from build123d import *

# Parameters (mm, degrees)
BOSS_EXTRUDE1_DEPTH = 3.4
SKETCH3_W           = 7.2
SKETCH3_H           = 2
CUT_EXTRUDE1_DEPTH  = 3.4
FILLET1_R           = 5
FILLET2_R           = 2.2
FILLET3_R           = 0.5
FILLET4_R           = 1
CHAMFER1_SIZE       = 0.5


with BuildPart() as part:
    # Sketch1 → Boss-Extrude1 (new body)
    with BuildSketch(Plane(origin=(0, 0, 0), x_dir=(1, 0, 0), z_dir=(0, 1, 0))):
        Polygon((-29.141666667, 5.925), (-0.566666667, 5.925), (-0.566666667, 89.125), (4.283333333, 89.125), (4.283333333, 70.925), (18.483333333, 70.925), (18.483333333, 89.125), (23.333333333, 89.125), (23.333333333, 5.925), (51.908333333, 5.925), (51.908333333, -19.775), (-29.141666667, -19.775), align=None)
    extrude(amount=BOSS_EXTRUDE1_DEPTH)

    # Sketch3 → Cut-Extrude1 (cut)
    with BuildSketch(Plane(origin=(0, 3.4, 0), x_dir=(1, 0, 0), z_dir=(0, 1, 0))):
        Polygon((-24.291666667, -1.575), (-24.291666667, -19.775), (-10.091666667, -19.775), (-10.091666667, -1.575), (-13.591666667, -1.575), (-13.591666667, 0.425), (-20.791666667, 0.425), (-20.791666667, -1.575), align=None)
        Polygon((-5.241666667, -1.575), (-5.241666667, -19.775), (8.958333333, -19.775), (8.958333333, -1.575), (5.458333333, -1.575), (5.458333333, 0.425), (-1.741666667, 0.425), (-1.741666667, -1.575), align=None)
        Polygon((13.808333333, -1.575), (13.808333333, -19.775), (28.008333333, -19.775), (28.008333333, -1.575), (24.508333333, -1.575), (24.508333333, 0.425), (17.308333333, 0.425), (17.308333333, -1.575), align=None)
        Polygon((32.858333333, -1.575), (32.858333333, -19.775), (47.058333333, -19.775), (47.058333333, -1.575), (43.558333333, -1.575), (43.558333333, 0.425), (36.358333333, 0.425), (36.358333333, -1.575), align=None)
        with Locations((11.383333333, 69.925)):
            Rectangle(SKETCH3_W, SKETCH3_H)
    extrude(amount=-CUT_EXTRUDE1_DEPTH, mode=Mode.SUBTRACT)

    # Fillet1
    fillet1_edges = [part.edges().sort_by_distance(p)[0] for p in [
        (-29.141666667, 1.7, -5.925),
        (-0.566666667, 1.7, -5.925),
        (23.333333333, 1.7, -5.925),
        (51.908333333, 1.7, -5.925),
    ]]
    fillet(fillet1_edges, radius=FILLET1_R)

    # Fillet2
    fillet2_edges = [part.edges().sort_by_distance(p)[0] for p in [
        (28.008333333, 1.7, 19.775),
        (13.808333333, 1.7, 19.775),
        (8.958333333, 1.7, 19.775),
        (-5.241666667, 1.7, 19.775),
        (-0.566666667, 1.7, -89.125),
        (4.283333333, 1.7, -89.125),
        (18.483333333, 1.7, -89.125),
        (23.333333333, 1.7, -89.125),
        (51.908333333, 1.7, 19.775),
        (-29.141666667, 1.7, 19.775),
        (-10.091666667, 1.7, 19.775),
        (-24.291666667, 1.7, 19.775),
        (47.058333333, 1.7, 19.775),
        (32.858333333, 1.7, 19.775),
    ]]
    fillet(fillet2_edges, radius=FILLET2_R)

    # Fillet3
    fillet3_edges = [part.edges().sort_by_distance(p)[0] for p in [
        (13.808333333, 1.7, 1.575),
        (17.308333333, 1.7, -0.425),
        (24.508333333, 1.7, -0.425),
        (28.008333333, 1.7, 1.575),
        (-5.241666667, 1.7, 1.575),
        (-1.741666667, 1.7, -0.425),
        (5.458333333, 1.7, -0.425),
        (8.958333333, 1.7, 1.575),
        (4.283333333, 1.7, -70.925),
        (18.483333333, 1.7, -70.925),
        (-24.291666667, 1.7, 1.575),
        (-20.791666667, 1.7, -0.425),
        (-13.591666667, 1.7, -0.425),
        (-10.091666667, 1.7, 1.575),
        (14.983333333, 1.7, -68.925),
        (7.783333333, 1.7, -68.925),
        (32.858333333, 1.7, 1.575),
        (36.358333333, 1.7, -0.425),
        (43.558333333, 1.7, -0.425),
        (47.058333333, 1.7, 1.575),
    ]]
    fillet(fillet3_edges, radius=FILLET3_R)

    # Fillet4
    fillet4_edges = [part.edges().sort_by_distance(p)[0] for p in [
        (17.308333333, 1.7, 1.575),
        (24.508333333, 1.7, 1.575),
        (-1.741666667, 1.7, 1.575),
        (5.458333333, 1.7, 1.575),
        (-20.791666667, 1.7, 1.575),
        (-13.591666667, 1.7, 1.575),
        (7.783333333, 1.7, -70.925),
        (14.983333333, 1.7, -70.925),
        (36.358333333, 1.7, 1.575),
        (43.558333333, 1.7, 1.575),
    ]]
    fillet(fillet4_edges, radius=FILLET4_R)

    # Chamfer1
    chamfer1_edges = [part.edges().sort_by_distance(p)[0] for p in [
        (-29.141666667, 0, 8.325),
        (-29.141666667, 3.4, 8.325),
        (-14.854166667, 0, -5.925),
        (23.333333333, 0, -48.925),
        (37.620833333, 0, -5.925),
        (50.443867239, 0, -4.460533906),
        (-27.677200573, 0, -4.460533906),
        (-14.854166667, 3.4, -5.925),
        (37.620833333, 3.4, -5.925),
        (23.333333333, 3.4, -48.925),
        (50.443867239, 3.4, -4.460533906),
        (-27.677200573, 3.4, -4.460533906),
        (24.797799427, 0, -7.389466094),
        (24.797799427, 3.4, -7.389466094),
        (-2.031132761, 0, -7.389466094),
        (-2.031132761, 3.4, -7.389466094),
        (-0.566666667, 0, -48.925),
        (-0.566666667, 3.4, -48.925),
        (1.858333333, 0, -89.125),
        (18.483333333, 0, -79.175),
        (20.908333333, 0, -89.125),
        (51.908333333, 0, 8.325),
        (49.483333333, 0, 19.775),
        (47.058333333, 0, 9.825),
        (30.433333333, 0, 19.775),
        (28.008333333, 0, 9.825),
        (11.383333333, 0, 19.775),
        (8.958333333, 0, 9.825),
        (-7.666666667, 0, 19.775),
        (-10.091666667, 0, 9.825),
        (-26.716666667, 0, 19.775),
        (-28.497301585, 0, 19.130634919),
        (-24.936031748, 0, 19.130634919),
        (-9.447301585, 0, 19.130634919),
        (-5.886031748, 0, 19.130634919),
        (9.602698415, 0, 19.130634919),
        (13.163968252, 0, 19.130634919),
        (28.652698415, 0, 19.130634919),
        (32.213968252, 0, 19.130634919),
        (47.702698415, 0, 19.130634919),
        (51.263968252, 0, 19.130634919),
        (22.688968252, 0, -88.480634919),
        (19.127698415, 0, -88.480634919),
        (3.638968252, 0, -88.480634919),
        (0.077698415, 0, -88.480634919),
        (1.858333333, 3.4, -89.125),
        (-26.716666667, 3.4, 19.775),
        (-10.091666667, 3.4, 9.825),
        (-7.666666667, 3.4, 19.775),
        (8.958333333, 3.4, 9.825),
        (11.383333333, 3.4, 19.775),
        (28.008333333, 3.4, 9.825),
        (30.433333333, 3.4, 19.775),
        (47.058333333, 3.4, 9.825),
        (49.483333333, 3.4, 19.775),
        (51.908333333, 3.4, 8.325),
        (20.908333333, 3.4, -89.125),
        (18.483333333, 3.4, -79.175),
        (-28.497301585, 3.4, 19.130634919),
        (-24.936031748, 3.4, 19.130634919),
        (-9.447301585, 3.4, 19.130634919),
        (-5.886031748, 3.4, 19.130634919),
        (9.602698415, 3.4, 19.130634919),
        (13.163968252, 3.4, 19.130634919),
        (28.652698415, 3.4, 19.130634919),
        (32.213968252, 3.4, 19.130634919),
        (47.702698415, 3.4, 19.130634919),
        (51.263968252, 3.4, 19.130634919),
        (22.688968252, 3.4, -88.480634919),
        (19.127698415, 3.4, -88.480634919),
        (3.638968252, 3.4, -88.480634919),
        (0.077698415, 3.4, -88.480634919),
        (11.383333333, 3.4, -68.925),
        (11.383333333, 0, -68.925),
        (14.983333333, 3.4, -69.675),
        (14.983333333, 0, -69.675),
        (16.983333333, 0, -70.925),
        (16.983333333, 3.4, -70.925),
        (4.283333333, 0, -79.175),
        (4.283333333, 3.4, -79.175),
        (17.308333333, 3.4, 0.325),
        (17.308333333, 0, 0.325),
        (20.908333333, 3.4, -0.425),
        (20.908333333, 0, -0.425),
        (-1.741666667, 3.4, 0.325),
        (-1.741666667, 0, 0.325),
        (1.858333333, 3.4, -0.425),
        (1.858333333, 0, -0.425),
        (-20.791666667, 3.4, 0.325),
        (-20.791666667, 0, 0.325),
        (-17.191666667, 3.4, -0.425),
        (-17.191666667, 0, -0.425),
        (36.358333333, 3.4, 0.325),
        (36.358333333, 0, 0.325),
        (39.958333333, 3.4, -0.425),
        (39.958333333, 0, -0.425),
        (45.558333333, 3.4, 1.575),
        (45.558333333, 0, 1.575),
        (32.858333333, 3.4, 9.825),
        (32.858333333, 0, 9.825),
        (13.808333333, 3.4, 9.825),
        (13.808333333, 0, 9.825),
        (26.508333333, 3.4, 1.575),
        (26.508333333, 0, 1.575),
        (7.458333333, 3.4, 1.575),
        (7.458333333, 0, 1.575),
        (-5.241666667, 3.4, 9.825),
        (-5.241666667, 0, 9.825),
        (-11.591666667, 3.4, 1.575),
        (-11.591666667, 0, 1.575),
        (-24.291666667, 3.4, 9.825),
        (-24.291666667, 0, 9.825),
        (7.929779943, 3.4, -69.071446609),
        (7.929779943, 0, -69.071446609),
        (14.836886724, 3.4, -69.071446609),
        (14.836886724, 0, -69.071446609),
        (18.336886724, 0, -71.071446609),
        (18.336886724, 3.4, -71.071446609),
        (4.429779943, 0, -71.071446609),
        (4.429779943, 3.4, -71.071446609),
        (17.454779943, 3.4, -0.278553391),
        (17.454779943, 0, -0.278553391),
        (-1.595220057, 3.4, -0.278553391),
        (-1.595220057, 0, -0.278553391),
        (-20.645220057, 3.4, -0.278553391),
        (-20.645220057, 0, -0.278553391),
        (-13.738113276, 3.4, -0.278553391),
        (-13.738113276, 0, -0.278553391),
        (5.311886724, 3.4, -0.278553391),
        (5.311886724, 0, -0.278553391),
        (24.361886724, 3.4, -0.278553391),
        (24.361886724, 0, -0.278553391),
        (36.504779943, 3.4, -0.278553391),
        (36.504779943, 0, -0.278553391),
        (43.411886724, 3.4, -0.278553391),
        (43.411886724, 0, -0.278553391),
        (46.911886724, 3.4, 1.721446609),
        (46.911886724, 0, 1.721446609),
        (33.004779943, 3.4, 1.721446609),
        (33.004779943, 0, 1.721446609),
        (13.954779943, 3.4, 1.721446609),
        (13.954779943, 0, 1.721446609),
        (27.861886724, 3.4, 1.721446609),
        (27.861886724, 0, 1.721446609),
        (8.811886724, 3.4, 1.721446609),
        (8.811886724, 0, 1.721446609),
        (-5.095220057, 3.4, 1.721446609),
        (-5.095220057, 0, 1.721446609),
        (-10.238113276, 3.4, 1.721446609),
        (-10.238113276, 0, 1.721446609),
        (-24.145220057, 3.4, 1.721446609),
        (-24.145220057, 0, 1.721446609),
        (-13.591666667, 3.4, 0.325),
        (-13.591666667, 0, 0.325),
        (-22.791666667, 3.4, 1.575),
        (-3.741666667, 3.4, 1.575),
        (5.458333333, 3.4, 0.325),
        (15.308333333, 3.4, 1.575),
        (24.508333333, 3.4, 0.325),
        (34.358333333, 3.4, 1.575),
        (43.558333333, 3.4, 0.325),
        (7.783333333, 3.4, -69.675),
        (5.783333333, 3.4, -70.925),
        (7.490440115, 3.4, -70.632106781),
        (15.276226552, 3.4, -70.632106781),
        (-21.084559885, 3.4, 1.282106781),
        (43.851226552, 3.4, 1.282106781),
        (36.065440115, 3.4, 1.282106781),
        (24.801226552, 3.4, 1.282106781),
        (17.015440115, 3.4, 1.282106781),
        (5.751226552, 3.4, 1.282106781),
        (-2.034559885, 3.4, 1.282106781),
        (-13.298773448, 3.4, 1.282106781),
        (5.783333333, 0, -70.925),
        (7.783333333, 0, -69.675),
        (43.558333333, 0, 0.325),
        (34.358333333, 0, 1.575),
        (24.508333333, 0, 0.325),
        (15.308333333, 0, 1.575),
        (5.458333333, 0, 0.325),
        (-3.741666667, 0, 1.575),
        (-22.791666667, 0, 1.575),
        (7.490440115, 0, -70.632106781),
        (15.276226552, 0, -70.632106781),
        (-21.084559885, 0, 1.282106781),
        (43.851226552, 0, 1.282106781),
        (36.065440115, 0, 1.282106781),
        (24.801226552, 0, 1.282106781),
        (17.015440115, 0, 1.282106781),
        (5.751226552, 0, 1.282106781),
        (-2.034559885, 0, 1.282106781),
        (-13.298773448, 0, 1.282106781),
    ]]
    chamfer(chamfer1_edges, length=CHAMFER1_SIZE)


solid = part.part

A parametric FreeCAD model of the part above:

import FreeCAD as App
import Part
import Sketcher


def edges_at(feature, points):
    """Names of the edges that pass closest to the given points."""
    edges = feature.Shape.Edges
    near = lambda p: min(range(len(edges)), key=lambda i: edges[i].distToShape(Part.Vertex(*p))[0])
    return sorted({f"Edge{near(p) + 1}" for p in points})

doc = App.newDocument("Part")
params = doc.addObject("Spreadsheet::Sheet", "Params")
for row, (alias, value) in enumerate([
    ("sketch1_width", "14.2 mm"),
    ("sketch1_height", "25.7 mm"),
    ("sketch1_height2", "83.2 mm"),
    ("sketch1_height3", "18.2 mm"),
    ("sketch1_width2", "81.05 mm"),
    ("pad1_length", "3.4 mm"),
    ("sketch2_height", "2 mm"),
    ("sketch2_width", "14.2 mm"),
    ("sketch2_width2", "3.5 mm"),
    ("sketch2_height2", "18.2 mm"),
    ("pocket1_length", "3.4 mm"),
    ("fillet_radius", "5 mm"),
    ("fillet2_radius", "2.2 mm"),
    ("fillet3_radius", "0.5 mm"),
    ("fillet4_radius", "1 mm"),
    ("chamfer_size", "0.5 mm"),
], start=1):
    params.set(f"A{row}", alias)
    params.set(f"B{row}", "=" + value)
    params.setAlias(f"B{row}", alias)

body = doc.addObject("PartDesign::Body", "Body")

# Sketch on XZ plane
sketch1 = doc.addObject("Sketcher::SketchObject", "Sketch")
body.addObject(sketch1)
sketch1.AttachmentSupport = (doc.XZ_Plane, [""])
sketch1.MapMode = "FlatFace"
sketch1.addGeometry([
    Part.LineSegment(App.Vector(-0.6, -5.9, 0), App.Vector(-29.1, -5.9, 0)),  # 0
    Part.LineSegment(App.Vector(-29.1, -5.9, 0), App.Vector(-29.1, 19.8, 0)),  # 1
    Part.LineSegment(App.Vector(-29.1, 19.8, 0), App.Vector(51.9, 19.8, 0)),  # 2
    Part.LineSegment(App.Vector(51.9, 19.8, 0), App.Vector(51.9, -5.9, 0)),  # 3
    Part.LineSegment(App.Vector(51.9, -5.9, 0), App.Vector(23.3, -5.9, 0)),  # 4
    Part.LineSegment(App.Vector(23.3, -5.9, 0), App.Vector(23.3, -89.1, 0)),  # 5
    Part.LineSegment(App.Vector(23.3, -89.1, 0), App.Vector(18.5, -89.1, 0)),  # 6
    Part.LineSegment(App.Vector(18.5, -89.1, 0), App.Vector(18.5, -70.9, 0)),  # 7
    Part.LineSegment(App.Vector(18.5, -70.9, 0), App.Vector(4.3, -70.9, 0)),  # 8
    Part.LineSegment(App.Vector(4.3, -70.9, 0), App.Vector(4.3, -89.1, 0)),  # 9
    Part.LineSegment(App.Vector(4.3, -89.1, 0), App.Vector(-0.6, -89.1, 0)),  # 10
    Part.LineSegment(App.Vector(-0.6, -89.1, 0), App.Vector(-0.6, -5.9, 0)),  # 11
], False)
sketch1.addConstraint([
    Sketcher.Constraint("Coincident", 0, 2, 1, 1),
    Sketcher.Constraint("Coincident", 1, 2, 2, 1),
    Sketcher.Constraint("Coincident", 2, 2, 3, 1),
    Sketcher.Constraint("Coincident", 3, 2, 4, 1),
    Sketcher.Constraint("Coincident", 4, 2, 5, 1),
    Sketcher.Constraint("Coincident", 5, 2, 6, 1),
    Sketcher.Constraint("Coincident", 6, 2, 7, 1),
    Sketcher.Constraint("Coincident", 7, 2, 8, 1),
    Sketcher.Constraint("Coincident", 8, 2, 9, 1),
    Sketcher.Constraint("Coincident", 9, 2, 10, 1),
    Sketcher.Constraint("Coincident", 10, 2, 11, 1),
    Sketcher.Constraint("Coincident", 11, 2, 0, 1),
    Sketcher.Constraint("Horizontal", 0),
    Sketcher.Constraint("Vertical", 1),
    Sketcher.Constraint("Horizontal", 2),
    Sketcher.Constraint("Vertical", 3),
    Sketcher.Constraint("Horizontal", 4),
    Sketcher.Constraint("Vertical", 5),
    Sketcher.Constraint("Horizontal", 6),
    Sketcher.Constraint("Vertical", 7),
    Sketcher.Constraint("Horizontal", 8),
    Sketcher.Constraint("Vertical", 9),
    Sketcher.Constraint("Horizontal", 10),
    Sketcher.Constraint("Vertical", 11),
    Sketcher.Constraint("Horizontal", 0, 2, 3, 2),
    Sketcher.Constraint("Horizontal", 6, 2, 9, 2),
    Sketcher.Constraint("Equal", 0, 4),
    Sketcher.Constraint("Equal", 6, 10),
    Sketcher.Constraint("DistanceX", 8, 2, 8, 1, 14.2),
    Sketcher.Constraint("DistanceY", 1, 1, 1, 2, 25.7),
    Sketcher.Constraint("DistanceY", 5, 2, 5, 1, 83.2),
    Sketcher.Constraint("DistanceY", 7, 1, 7, 2, 18.2),
    Sketcher.Constraint("DistanceX", 2, 1, 2, 2, 81.05),
    Sketcher.Constraint("DistanceX", 6, 2, 6, 1, 4.85),
    Sketcher.Constraint("DistanceY", 0, 2, -1, 1, 5.925),
    Sketcher.Constraint("DistanceX", 0, 2, -1, 1, 29.141667),
])
sketch1.setExpression("Constraints[28]", "Params.sketch1_width")
sketch1.setExpression("Constraints[29]", "Params.sketch1_height")
sketch1.setExpression("Constraints[30]", "Params.sketch1_height2")
sketch1.setExpression("Constraints[31]", "Params.sketch1_height3")
sketch1.setExpression("Constraints[32]", "Params.sketch1_width2")
pad1 = doc.addObject("PartDesign::Pad", "Pad")
body.addObject(pad1)
pad1.Profile = sketch1
pad1.setExpression("Length", "Params.pad1_length")
pad1.Reversed = True

# Sketch on XZ plane
sketch2 = doc.addObject("Sketcher::SketchObject", "Sketch001")
body.addObject(sketch2)
sketch2.AttachmentSupport = (doc.XZ_Plane, [""])
sketch2.MapMode = "FlatFace"
sketch2.AttachmentOffset = App.Placement(App.Vector(0, 0, -3.4), App.Rotation())
sketch2.addGeometry([
    Part.LineSegment(App.Vector(-24.3, 1.6, 0), App.Vector(-24.3, 19.8, 0)),  # 0
    Part.LineSegment(App.Vector(-24.3, 19.8, 0), App.Vector(-10.1, 19.8, 0)),  # 1
    Part.LineSegment(App.Vector(-10.1, 19.8, 0), App.Vector(-10.1, 1.6, 0)),  # 2
    Part.LineSegment(App.Vector(-10.1, 1.6, 0), App.Vector(-13.6, 1.6, 0)),  # 3
    Part.LineSegment(App.Vector(-13.6, 1.6, 0), App.Vector(-13.6, -0.4, 0)),  # 4
    Part.LineSegment(App.Vector(-13.6, -0.4, 0), App.Vector(-20.8, -0.4, 0)),  # 5
    Part.LineSegment(App.Vector(-20.8, -0.4, 0), App.Vector(-20.8, 1.6, 0)),  # 6
    Part.LineSegment(App.Vector(-20.8, 1.6, 0), App.Vector(-24.3, 1.6, 0)),  # 7
    Part.LineSegment(App.Vector(-5.2, 1.6, 0), App.Vector(-5.2, 19.8, 0)),  # 8
    Part.LineSegment(App.Vector(-5.2, 19.8, 0), App.Vector(9, 19.8, 0)),  # 9
    Part.LineSegment(App.Vector(9, 19.8, 0), App.Vector(9, 1.6, 0)),  # 10
    Part.LineSegment(App.Vector(9, 1.6, 0), App.Vector(5.5, 1.6, 0)),  # 11
    Part.LineSegment(App.Vector(5.5, 1.6, 0), App.Vector(5.5, -0.4, 0)),  # 12
    Part.LineSegment(App.Vector(5.5, -0.4, 0), App.Vector(-1.7, -0.4, 0)),  # 13
    Part.LineSegment(App.Vector(-1.7, -0.4, 0), App.Vector(-1.7, 1.6, 0)),  # 14
    Part.LineSegment(App.Vector(-1.7, 1.6, 0), App.Vector(-5.2, 1.6, 0)),  # 15
    Part.LineSegment(App.Vector(13.8, 1.6, 0), App.Vector(13.8, 19.8, 0)),  # 16
    Part.LineSegment(App.Vector(13.8, 19.8, 0), App.Vector(28, 19.8, 0)),  # 17
    Part.LineSegment(App.Vector(28, 19.8, 0), App.Vector(28, 1.6, 0)),  # 18
    Part.LineSegment(App.Vector(28, 1.6, 0), App.Vector(24.5, 1.6, 0)),  # 19
    Part.LineSegment(App.Vector(24.5, 1.6, 0), App.Vector(24.5, -0.4, 0)),  # 20
    Part.LineSegment(App.Vector(24.5, -0.4, 0), App.Vector(17.3, -0.4, 0)),  # 21
    Part.LineSegment(App.Vector(17.3, -0.4, 0), App.Vector(17.3, 1.6, 0)),  # 22
    Part.LineSegment(App.Vector(17.3, 1.6, 0), App.Vector(13.8, 1.6, 0)),  # 23
    Part.LineSegment(App.Vector(32.9, 1.6, 0), App.Vector(32.9, 19.8, 0)),  # 24
    Part.LineSegment(App.Vector(32.9, 19.8, 0), App.Vector(47.1, 19.8, 0)),  # 25
    Part.LineSegment(App.Vector(47.1, 19.8, 0), App.Vector(47.1, 1.6, 0)),  # 26
    Part.LineSegment(App.Vector(47.1, 1.6, 0), App.Vector(43.6, 1.6, 0)),  # 27
    Part.LineSegment(App.Vector(43.6, 1.6, 0), App.Vector(43.6, -0.4, 0)),  # 28
    Part.LineSegment(App.Vector(43.6, -0.4, 0), App.Vector(36.4, -0.4, 0)),  # 29
    Part.LineSegment(App.Vector(36.4, -0.4, 0), App.Vector(36.4, 1.6, 0)),  # 30
    Part.LineSegment(App.Vector(36.4, 1.6, 0), App.Vector(32.9, 1.6, 0)),  # 31
    Part.LineSegment(App.Vector(7.8, -70.9, 0), App.Vector(7.8, -68.9, 0)),  # 32
    Part.LineSegment(App.Vector(7.8, -68.9, 0), App.Vector(15, -68.9, 0)),  # 33
    Part.LineSegment(App.Vector(15, -68.9, 0), App.Vector(15, -70.9, 0)),  # 34
    Part.LineSegment(App.Vector(15, -70.9, 0), App.Vector(7.8, -70.9, 0)),  # 35
], False)
sketch2.addConstraint([
    Sketcher.Constraint("Coincident", 0, 2, 1, 1),
    Sketcher.Constraint("Coincident", 1, 2, 2, 1),
    Sketcher.Constraint("Coincident", 2, 2, 3, 1),
    Sketcher.Constraint("Coincident", 3, 2, 4, 1),
    Sketcher.Constraint("Coincident", 4, 2, 5, 1),
    Sketcher.Constraint("Coincident", 5, 2, 6, 1),
    Sketcher.Constraint("Coincident", 6, 2, 7, 1),
    Sketcher.Constraint("Coincident", 7, 2, 0, 1),
    Sketcher.Constraint("Coincident", 8, 2, 9, 1),
    Sketcher.Constraint("Coincident", 9, 2, 10, 1),
    Sketcher.Constraint("Coincident", 10, 2, 11, 1),
    Sketcher.Constraint("Coincident", 11, 2, 12, 1),
    Sketcher.Constraint("Coincident", 12, 2, 13, 1),
    Sketcher.Constraint("Coincident", 13, 2, 14, 1),
    Sketcher.Constraint("Coincident", 14, 2, 15, 1),
    Sketcher.Constraint("Coincident", 15, 2, 8, 1),
    Sketcher.Constraint("Coincident", 16, 2, 17, 1),
    Sketcher.Constraint("Coincident", 17, 2, 18, 1),
    Sketcher.Constraint("Coincident", 18, 2, 19, 1),
    Sketcher.Constraint("Coincident", 19, 2, 20, 1),
    Sketcher.Constraint("Coincident", 20, 2, 21, 1),
    Sketcher.Constraint("Coincident", 21, 2, 22, 1),
    Sketcher.Constraint("Coincident", 22, 2, 23, 1),
    Sketcher.Constraint("Coincident", 23, 2, 16, 1),
    Sketcher.Constraint("Coincident", 24, 2, 25, 1),
    Sketcher.Constraint("Coincident", 25, 2, 26, 1),
    Sketcher.Constraint("Coincident", 26, 2, 27, 1),
    Sketcher.Constraint("Coincident", 27, 2, 28, 1),
    Sketcher.Constraint("Coincident", 28, 2, 29, 1),
    Sketcher.Constraint("Coincident", 29, 2, 30, 1),
    Sketcher.Constraint("Coincident", 30, 2, 31, 1),
    Sketcher.Constraint("Coincident", 31, 2, 24, 1),
    Sketcher.Constraint("Coincident", 32, 2, 33, 1),
    Sketcher.Constraint("Coincident", 33, 2, 34, 1),
    Sketcher.Constraint("Coincident", 34, 2, 35, 1),
    Sketcher.Constraint("Coincident", 35, 2, 32, 1),
    Sketcher.Constraint("Vertical", 0),
    Sketcher.Constraint("Horizontal", 1),
    Sketcher.Constraint("Vertical", 2),
    Sketcher.Constraint("Horizontal", 3),
    Sketcher.Constraint("Vertical", 4),
    Sketcher.Constraint("Horizontal", 5),
    Sketcher.Constraint("Vertical", 6),
    Sketcher.Constraint("Horizontal", 7),
    Sketcher.Constraint("Vertical", 8),
    Sketcher.Constraint("Horizontal", 9),
    Sketcher.Constraint("Vertical", 10),
    Sketcher.Constraint("Horizontal", 11),
    Sketcher.Constraint("Vertical", 12),
    Sketcher.Constraint("Horizontal", 13),
    Sketcher.Constraint("Vertical", 14),
    Sketcher.Constraint("Horizontal", 15),
    Sketcher.Constraint("Vertical", 16),
    Sketcher.Constraint("Horizontal", 17),
    Sketcher.Constraint("Vertical", 18),
    Sketcher.Constraint("Horizontal", 19),
    Sketcher.Constraint("Vertical", 20),
    Sketcher.Constraint("Horizontal", 21),
    Sketcher.Constraint("Vertical", 22),
    Sketcher.Constraint("Horizontal", 23),
    Sketcher.Constraint("Vertical", 24),
    Sketcher.Constraint("Horizontal", 25),
    Sketcher.Constraint("Vertical", 26),
    Sketcher.Constraint("Horizontal", 27),
    Sketcher.Constraint("Vertical", 28),
    Sketcher.Constraint("Horizontal", 29),
    Sketcher.Constraint("Vertical", 30),
    Sketcher.Constraint("Horizontal", 31),
    Sketcher.Constraint("Vertical", 32),
    Sketcher.Constraint("Horizontal", 33),
    Sketcher.Constraint("Vertical", 34),
    Sketcher.Constraint("Horizontal", 35),
    Sketcher.Constraint("Horizontal", 3, 2, 6, 2),
    Sketcher.Constraint("Horizontal", 1, 2, 8, 2),
    Sketcher.Constraint("Horizontal", 7, 2, 10, 2),
    Sketcher.Constraint("Horizontal", 5, 2, 12, 2),
    Sketcher.Constraint("Horizontal", 11, 2, 14, 2),
    Sketcher.Constraint("Horizontal", 9, 2, 16, 2),
    Sketcher.Constraint("Horizontal", 15, 2, 18, 2),
    Sketcher.Constraint("Horizontal", 13, 2, 20, 2),
    Sketcher.Constraint("Horizontal", 19, 2, 22, 2),
    Sketcher.Constraint("Horizontal", 17, 2, 24, 2),
    Sketcher.Constraint("Horizontal", 23, 2, 26, 2),
    Sketcher.Constraint("Horizontal", 21, 2, 28, 2),
    Sketcher.Constraint("Horizontal", 27, 2, 30, 2),
    Sketcher.Constraint("Equal", 3, 7),
    Sketcher.Constraint("Equal", 1, 9),
    Sketcher.Constraint("Equal", 7, 11),
    Sketcher.Constraint("Equal", 5, 13),
    Sketcher.Constraint("Equal", 9, 17),
    Sketcher.Constraint("Equal", 15, 19),
    Sketcher.Constraint("Equal", 13, 21),
    Sketcher.Constraint("Equal", 17, 25),
    Sketcher.Constraint("Equal", 23, 27),
    Sketcher.Constraint("Equal", 21, 29),
    Sketcher.Constraint("Equal", 29, 33),
    Sketcher.Constraint("Equal", 30, 32),
    Sketcher.Constraint("DistanceY", 4, 2, 4, 1, 2.0),
    Sketcher.Constraint("DistanceX", 1, 1, 1, 2, 14.2),
    Sketcher.Constraint("DistanceX", 3, 2, 3, 1, 3.5),
    Sketcher.Constraint("DistanceY", 0, 1, 0, 2, 18.2),
    Sketcher.Constraint("DistanceY", 32, 2, 12, 2, 68.5),
    Sketcher.Constraint("DistanceX", 1, 2, 8, 2, 4.85),
    Sketcher.Constraint("DistanceX", 9, 2, 16, 2, 4.85),
    Sketcher.Constraint("DistanceX", 17, 2, 24, 2, 4.85),
    Sketcher.Constraint("DistanceY", -1, 1, 0, 2, 19.775),
    Sketcher.Constraint("DistanceX", 12, 2, 32, 2, 2.325),
    Sketcher.Constraint("DistanceX", 0, 2, -1, 1, 24.291667),
])
sketch2.setExpression("Constraints[97]", "Params.sketch2_height")
sketch2.setExpression("Constraints[98]", "Params.sketch2_width")
sketch2.setExpression("Constraints[99]", "Params.sketch2_width2")
sketch2.setExpression("Constraints[100]", "Params.sketch2_height2")
pocket1 = doc.addObject("PartDesign::Pocket", "Pocket")
body.addObject(pocket1)
pocket1.Profile = sketch2
pocket1.setExpression("Length", "Params.pocket1_length")
pocket1.Reversed = True
doc.recompute()

fillet = doc.addObject("PartDesign::Fillet", "Fillet")
body.addObject(fillet)
fillet.Base = (pocket1, edges_at(pocket1, [
    (-29.142, 1.7, -5.925),
    (-0.567, 1.7, -5.925),
    (23.333, 1.7, -5.925),
    (51.908, 1.7, -5.925),
]))
fillet.setExpression("Radius", "Params.fillet_radius")
doc.recompute()

fillet2 = doc.addObject("PartDesign::Fillet", "Fillet001")
body.addObject(fillet2)
fillet2.Base = (fillet, edges_at(fillet, [
    (28.008, 1.7, 19.775),
    (13.808, 1.7, 19.775),
    (8.958, 1.7, 19.775),
    (-5.242, 1.7, 19.775),
    (-0.567, 1.7, -89.125),
    (4.283, 1.7, -89.125),
    (18.483, 1.7, -89.125),
    (23.333, 1.7, -89.125),
    (51.908, 1.7, 19.775),
    (-29.142, 1.7, 19.775),
    (-10.092, 1.7, 19.775),
    (-24.292, 1.7, 19.775),
    (47.058, 1.7, 19.775),
    (32.858, 1.7, 19.775),
]))
fillet2.setExpression("Radius", "Params.fillet2_radius")
doc.recompute()

fillet3 = doc.addObject("PartDesign::Fillet", "Fillet002")
body.addObject(fillet3)
fillet3.Base = (fillet2, edges_at(fillet2, [
    (13.808, 1.7, 1.575),
    (17.308, 1.7, -0.425),
    (24.508, 1.7, -0.425),
    (28.008, 1.7, 1.575),
    (-5.242, 1.7, 1.575),
    (-1.742, 1.7, -0.425),
    (5.458, 1.7, -0.425),
    (8.958, 1.7, 1.575),
    (4.283, 1.7, -70.925),
    (18.483, 1.7, -70.925),
    (-24.292, 1.7, 1.575),
    (-20.792, 1.7, -0.425),
    (-13.592, 1.7, -0.425),
    (-10.092, 1.7, 1.575),
    (14.983, 1.7, -68.925),
    (7.783, 1.7, -68.925),
    (32.858, 1.7, 1.575),
    (36.358, 1.7, -0.425),
    (43.558, 1.7, -0.425),
    (47.058, 1.7, 1.575),
]))
fillet3.setExpression("Radius", "Params.fillet3_radius")
doc.recompute()

fillet4 = doc.addObject("PartDesign::Fillet", "Fillet003")
body.addObject(fillet4)
fillet4.Base = (fillet3, edges_at(fillet3, [
    (17.308, 1.7, 1.575),
    (24.508, 1.7, 1.575),
    (-1.742, 1.7, 1.575),
    (5.458, 1.7, 1.575),
    (-20.792, 1.7, 1.575),
    (-13.592, 1.7, 1.575),
    (7.783, 1.7, -70.925),
    (14.983, 1.7, -70.925),
    (36.358, 1.7, 1.575),
    (43.558, 1.7, 1.575),
]))
fillet4.setExpression("Radius", "Params.fillet4_radius")
doc.recompute()

chamfer = doc.addObject("PartDesign::Chamfer", "Chamfer")
body.addObject(chamfer)
chamfer.Base = (fillet4, edges_at(fillet4, [
    (-29.142, 0, 8.325),
    (-29.142, 3.4, 8.325),
    (-14.854, 0, -5.925),
    (23.333, 0, -48.925),
    (37.621, 0, -5.925),
    (50.444, 0, -4.461),
    (-27.677, 0, -4.461),
    (-14.854, 3.4, -5.925),
    (37.621, 3.4, -5.925),
    (23.333, 3.4, -48.925),
    (50.444, 3.4, -4.461),
    (-27.677, 3.4, -4.461),
    (24.798, 0, -7.389),
    (24.798, 3.4, -7.389),
    (-2.031, 0, -7.389),
    (-2.031, 3.4, -7.389),
    (-0.567, 0, -48.925),
    (-0.567, 3.4, -48.925),
    (1.858, 0, -89.125),
    (18.483, 0, -79.175),
    (20.908, 0, -89.125),
    (51.908, 0, 8.325),
    (49.483, 0, 19.775),
    (47.058, 0, 9.825),
    (30.433, 0, 19.775),
    (28.008, 0, 9.825),
    (11.383, 0, 19.775),
    (8.958, 0, 9.825),
    (-7.667, 0, 19.775),
    (-10.092, 0, 9.825),
    (-26.717, 0, 19.775),
    (-28.497, 0, 19.131),
    (-24.936, 0, 19.131),
    (-9.447, 0, 19.131),
    (-5.886, 0, 19.131),
    (9.603, 0, 19.131),
    (13.164, 0, 19.131),
    (28.653, 0, 19.131),
    (32.214, 0, 19.131),
    (47.703, 0, 19.131),
    (51.264, 0, 19.131),
    (22.689, 0, -88.481),
    (19.128, 0, -88.481),
    (3.639, 0, -88.481),
    (0.078, 0, -88.481),
    (1.858, 3.4, -89.125),
    (-26.717, 3.4, 19.775),
    (-10.092, 3.4, 9.825),
    (-7.667, 3.4, 19.775),
    (8.958, 3.4, 9.825),
    (11.383, 3.4, 19.775),
    (28.008, 3.4, 9.825),
    (30.433, 3.4, 19.775),
    (47.058, 3.4, 9.825),
    (49.483, 3.4, 19.775),
    (51.908, 3.4, 8.325),
    (20.908, 3.4, -89.125),
    (18.483, 3.4, -79.175),
    (-28.497, 3.4, 19.131),
    (-24.936, 3.4, 19.131),
    (-9.447, 3.4, 19.131),
    (-5.886, 3.4, 19.131),
    (9.603, 3.4, 19.131),
    (13.164, 3.4, 19.131),
    (28.653, 3.4, 19.131),
    (32.214, 3.4, 19.131),
    (47.703, 3.4, 19.131),
    (51.264, 3.4, 19.131),
    (22.689, 3.4, -88.481),
    (19.128, 3.4, -88.481),
    (3.639, 3.4, -88.481),
    (0.078, 3.4, -88.481),
    (11.383, 3.4, -68.925),
    (11.383, 0, -68.925),
    (14.983, 3.4, -69.675),
    (14.983, 0, -69.675),
    (16.983, 0, -70.925),
    (16.983, 3.4, -70.925),
    (4.283, 0, -79.175),
    (4.283, 3.4, -79.175),
    (17.308, 3.4, 0.325),
    (17.308, 0, 0.325),
    (20.908, 3.4, -0.425),
    (20.908, 0, -0.425),
    (-1.742, 3.4, 0.325),
    (-1.742, 0, 0.325),
    (1.858, 3.4, -0.425),
    (1.858, 0, -0.425),
    (-20.792, 3.4, 0.325),
    (-20.792, 0, 0.325),
    (-17.192, 3.4, -0.425),
    (-17.192, 0, -0.425),
    (36.358, 3.4, 0.325),
    (36.358, 0, 0.325),
    (39.958, 3.4, -0.425),
    (39.958, 0, -0.425),
    (45.558, 3.4, 1.575),
    (45.558, 0, 1.575),
    (32.858, 3.4, 9.825),
    (32.858, 0, 9.825),
    (13.808, 3.4, 9.825),
    (13.808, 0, 9.825),
    (26.508, 3.4, 1.575),
    (26.508, 0, 1.575),
    (7.458, 3.4, 1.575),
    (7.458, 0, 1.575),
    (-5.242, 3.4, 9.825),
    (-5.242, 0, 9.825),
    (-11.592, 3.4, 1.575),
    (-11.592, 0, 1.575),
    (-24.292, 3.4, 9.825),
    (-24.292, 0, 9.825),
    (7.93, 3.4, -69.071),
    (7.93, 0, -69.071),
    (14.837, 3.4, -69.071),
    (14.837, 0, -69.071),
    (18.337, 0, -71.071),
    (18.337, 3.4, -71.071),
    (4.43, 0, -71.071),
    (4.43, 3.4, -71.071),
    (17.455, 3.4, -0.279),
    (17.455, 0, -0.279),
    (-1.595, 3.4, -0.279),
    (-1.595, 0, -0.279),
    (-20.645, 3.4, -0.279),
    (-20.645, 0, -0.279),
    (-13.738, 3.4, -0.279),
    (-13.738, 0, -0.279),
    (5.312, 3.4, -0.279),
    (5.312, 0, -0.279),
    (24.362, 3.4, -0.279),
    (24.362, 0, -0.279),
    (36.505, 3.4, -0.279),
    (36.505, 0, -0.279),
    (43.412, 3.4, -0.279),
    (43.412, 0, -0.279),
    (46.912, 3.4, 1.721),
    (46.912, 0, 1.721),
    (33.005, 3.4, 1.721),
    (33.005, 0, 1.721),
    (13.955, 3.4, 1.721),
    (13.955, 0, 1.721),
    (27.862, 3.4, 1.721),
    (27.862, 0, 1.721),
    (8.812, 3.4, 1.721),
    (8.812, 0, 1.721),
    (-5.095, 3.4, 1.721),
    (-5.095, 0, 1.721),
    (-10.238, 3.4, 1.721),
    (-10.238, 0, 1.721),
    (-24.145, 3.4, 1.721),
    (-24.145, 0, 1.721),
    (-13.592, 3.4, 0.325),
    (-13.592, 0, 0.325),
    (-22.792, 3.4, 1.575),
    (-3.742, 3.4, 1.575),
    (5.458, 3.4, 0.325),
    (15.308, 3.4, 1.575),
    (24.508, 3.4, 0.325),
    (34.358, 3.4, 1.575),
    (43.558, 3.4, 0.325),
    (7.783, 3.4, -69.675),
    (5.783, 3.4, -70.925),
    (7.49, 3.4, -70.632),
    (15.276, 3.4, -70.632),
    (-21.085, 3.4, 1.282),
    (43.851, 3.4, 1.282),
    (36.065, 3.4, 1.282),
    (24.801, 3.4, 1.282),
    (17.015, 3.4, 1.282),
    (5.751, 3.4, 1.282),
    (-2.035, 3.4, 1.282),
    (-13.299, 3.4, 1.282),
    (5.783, 0, -70.925),
    (7.783, 0, -69.675),
    (43.558, 0, 0.325),
    (34.358, 0, 1.575),
    (24.508, 0, 0.325),
    (15.308, 0, 1.575),
    (5.458, 0, 0.325),
    (-3.742, 0, 1.575),
    (-22.792, 0, 1.575),
    (7.49, 0, -70.632),
    (15.276, 0, -70.632),
    (-21.085, 0, 1.282),
    (43.851, 0, 1.282),
    (36.065, 0, 1.282),
    (24.801, 0, 1.282),
    (17.015, 0, 1.282),
    (5.751, 0, 1.282),
    (-2.035, 0, 1.282),
    (-13.299, 0, 1.282),
]))
chamfer.setExpression("Size", "Params.chamfer_size")

doc.recompute()
